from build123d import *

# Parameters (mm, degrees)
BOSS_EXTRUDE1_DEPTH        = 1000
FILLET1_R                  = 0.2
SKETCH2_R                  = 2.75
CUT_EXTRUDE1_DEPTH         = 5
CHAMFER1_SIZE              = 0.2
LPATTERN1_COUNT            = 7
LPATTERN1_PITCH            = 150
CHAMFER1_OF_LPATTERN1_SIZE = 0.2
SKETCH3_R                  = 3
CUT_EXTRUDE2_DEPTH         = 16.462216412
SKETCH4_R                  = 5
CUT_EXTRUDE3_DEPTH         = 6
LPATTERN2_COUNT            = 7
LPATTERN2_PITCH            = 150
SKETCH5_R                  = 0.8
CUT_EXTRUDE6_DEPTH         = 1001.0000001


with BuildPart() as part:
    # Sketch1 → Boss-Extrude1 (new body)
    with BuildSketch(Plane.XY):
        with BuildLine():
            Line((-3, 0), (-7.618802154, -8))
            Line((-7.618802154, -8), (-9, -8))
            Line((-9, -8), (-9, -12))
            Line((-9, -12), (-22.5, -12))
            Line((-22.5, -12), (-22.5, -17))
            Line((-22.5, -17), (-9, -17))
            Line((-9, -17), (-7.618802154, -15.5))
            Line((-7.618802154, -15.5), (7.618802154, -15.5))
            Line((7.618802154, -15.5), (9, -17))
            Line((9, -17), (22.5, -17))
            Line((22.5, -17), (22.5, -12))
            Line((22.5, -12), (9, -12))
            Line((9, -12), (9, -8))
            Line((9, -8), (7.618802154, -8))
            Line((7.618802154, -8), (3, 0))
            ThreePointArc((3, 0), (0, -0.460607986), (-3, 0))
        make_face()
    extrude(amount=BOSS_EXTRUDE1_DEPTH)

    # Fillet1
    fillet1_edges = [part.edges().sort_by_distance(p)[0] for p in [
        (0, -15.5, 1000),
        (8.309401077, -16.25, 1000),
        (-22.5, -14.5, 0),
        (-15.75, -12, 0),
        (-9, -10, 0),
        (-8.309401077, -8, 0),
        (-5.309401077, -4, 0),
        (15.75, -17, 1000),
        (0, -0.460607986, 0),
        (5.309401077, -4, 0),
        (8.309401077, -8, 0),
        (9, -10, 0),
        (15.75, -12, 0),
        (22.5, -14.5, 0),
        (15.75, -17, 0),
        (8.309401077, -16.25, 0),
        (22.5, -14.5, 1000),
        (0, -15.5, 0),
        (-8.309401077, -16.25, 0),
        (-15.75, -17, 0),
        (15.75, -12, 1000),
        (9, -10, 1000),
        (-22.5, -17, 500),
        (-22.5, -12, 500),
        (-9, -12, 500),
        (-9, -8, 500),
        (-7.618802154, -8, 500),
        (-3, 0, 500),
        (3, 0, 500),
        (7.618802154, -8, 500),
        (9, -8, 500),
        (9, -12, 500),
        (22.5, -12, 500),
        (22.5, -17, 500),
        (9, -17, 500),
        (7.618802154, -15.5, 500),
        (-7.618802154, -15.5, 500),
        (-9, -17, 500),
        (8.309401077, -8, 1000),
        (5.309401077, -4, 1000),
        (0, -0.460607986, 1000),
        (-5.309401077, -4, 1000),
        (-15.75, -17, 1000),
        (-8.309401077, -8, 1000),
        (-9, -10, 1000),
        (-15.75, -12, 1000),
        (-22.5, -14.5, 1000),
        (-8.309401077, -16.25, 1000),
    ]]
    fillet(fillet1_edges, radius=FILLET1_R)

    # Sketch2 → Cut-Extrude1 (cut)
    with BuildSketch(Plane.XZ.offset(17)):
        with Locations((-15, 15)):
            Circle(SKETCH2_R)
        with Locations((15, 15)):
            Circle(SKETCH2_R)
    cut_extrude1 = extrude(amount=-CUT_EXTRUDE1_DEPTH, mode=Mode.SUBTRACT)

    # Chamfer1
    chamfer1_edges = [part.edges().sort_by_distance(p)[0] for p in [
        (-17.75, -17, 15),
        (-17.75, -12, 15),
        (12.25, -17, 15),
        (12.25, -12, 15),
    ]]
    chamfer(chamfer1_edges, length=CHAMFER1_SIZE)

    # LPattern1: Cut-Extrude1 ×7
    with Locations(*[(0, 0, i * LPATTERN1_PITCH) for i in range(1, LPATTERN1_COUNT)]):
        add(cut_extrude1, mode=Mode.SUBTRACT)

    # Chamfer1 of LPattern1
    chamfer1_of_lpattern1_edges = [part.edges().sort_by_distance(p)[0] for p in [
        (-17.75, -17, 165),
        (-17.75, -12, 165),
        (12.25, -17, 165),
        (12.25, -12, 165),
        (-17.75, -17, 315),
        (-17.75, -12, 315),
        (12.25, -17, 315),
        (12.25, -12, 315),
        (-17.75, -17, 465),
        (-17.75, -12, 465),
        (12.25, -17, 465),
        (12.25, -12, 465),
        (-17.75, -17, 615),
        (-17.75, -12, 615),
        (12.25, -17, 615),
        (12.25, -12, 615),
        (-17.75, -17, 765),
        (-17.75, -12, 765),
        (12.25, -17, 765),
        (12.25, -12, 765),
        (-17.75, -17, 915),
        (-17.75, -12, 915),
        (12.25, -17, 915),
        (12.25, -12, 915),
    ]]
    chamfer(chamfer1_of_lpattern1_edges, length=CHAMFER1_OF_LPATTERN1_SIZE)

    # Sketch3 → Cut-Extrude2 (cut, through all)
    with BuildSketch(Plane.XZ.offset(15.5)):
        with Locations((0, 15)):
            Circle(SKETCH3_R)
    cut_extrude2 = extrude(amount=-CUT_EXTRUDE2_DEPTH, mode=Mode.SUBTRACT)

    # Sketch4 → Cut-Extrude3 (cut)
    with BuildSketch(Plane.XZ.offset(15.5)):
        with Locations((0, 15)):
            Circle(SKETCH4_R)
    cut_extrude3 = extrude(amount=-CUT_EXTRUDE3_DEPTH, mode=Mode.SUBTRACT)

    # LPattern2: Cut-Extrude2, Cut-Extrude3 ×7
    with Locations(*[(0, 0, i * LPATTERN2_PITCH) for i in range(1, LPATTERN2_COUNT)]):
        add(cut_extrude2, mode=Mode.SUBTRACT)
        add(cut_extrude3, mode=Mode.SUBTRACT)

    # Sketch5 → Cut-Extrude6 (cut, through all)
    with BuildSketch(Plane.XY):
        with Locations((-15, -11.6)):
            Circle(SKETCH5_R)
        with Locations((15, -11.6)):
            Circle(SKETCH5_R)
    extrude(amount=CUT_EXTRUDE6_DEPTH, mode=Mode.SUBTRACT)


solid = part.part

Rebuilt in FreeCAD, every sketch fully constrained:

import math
import FreeCAD as App
import Part
import Sketcher
from FreeCAD import Vector
Q = App.Units.Quantity


def edges_at(feature, points):
    """Names of the edges that pass closest to the given points."""
    edges = feature.Shape.Edges
    near = lambda p: min(range(len(edges)), key=lambda i: edges[i].distToShape(Part.Vertex(*p))[0])
    return sorted({f"Edge{near(p) + 1}" for p in points})

doc = App.newDocument("Part")
params = doc.addObject("Spreadsheet::Sheet", "Params")
for row, (alias, value) in enumerate([
    ("sketch1_radius", "10 mm"),
    ("sketch1_height", "4 mm"),
    ("sketch1_height2", "5 mm"),
    ("sketch1_width", "13.5 mm"),
    ("pad1_length", "1000 mm"),
    ("fillet_radius", "0.2 mm"),
    ("sketch2_diameter", "5.5 mm"),
    ("pocket1_length", "5 mm"),
    ("chamfer_size", "0.2 mm"),
    ("linearpattern_pitch", "150 mm"),
    ("chamfer2_size", "0.2 mm"),
    ("sketch3_diameter", "6 mm"),
    ("sketch4_diameter", "10 mm"),
    ("pocket3_length", "6 mm"),
    ("linearpattern2_pitch", "150 mm"),
    ("sketch5_diameter", "1.6 mm"),
], start=1):
    params.set(f"A{row}", alias)
    params.set(f"B{row}", "=" + value)
    params.setAlias(f"B{row}", alias)

body = doc.addObject("PartDesign::Body", "Body")

# Sketch on XY plane
sketch1 = body.newObject("Sketcher::SketchObject", "Sketch")
sketch1.AttachmentSupport = (doc.getObject("XY_Plane"), [""])
sketch1.MapMode = "FlatFace"
sketch1.addGeometry([
    Part.LineSegment(Vector(-3, 0, 0), Vector(-7.6, -8, 0)),  # 0
    Part.LineSegment(Vector(-7.6, -8, 0), Vector(-9, -8, 0)),  # 1
    Part.LineSegment(Vector(-9, -8, 0), Vector(-9, -12, 0)),  # 2
    Part.LineSegment(Vector(-9, -12, 0), Vector(-22.5, -12, 0)),  # 3
    Part.LineSegment(Vector(-22.5, -12, 0), Vector(-22.5, -17, 0)),  # 4
    Part.LineSegment(Vector(-22.5, -17, 0), Vector(-9, -17, 0)),  # 5
    Part.LineSegment(Vector(-9, -17, 0), Vector(-7.6, -15.5, 0)),  # 6
    Part.LineSegment(Vector(-7.6, -15.5, 0), Vector(7.6, -15.5, 0)),  # 7
    Part.LineSegment(Vector(7.6, -15.5, 0), Vector(9, -17, 0)),  # 8
    Part.LineSegment(Vector(9, -17, 0), Vector(22.5, -17, 0)),  # 9
    Part.LineSegment(Vector(22.5, -17, 0), Vector(22.5, -12, 0)),  # 10
    Part.LineSegment(Vector(22.5, -12, 0), Vector(9, -12, 0)),  # 11
    Part.LineSegment(Vector(9, -12, 0), Vector(9, -8, 0)),  # 12
    Part.LineSegment(Vector(9, -8, 0), Vector(7.6, -8, 0)),  # 13
    Part.LineSegment(Vector(7.6, -8, 0), Vector(3, 0, 0)),  # 14
    Part.ArcOfCircle(Part.Circle(Vector(0, 9.5, 0), Vector(0, 0, 1), 10), math.radians(-107), math.radians(-73)),  # 15
], False)
sketch1.addConstraint([
    Sketcher.Constraint("Coincident", 0, 2, 1, 1),
    Sketcher.Constraint("Coincident", 1, 2, 2, 1),
    Sketcher.Constraint("Coincident", 2, 2, 3, 1),
    Sketcher.Constraint("Coincident", 3, 2, 4, 1),
    Sketcher.Constraint("Coincident", 4, 2, 5, 1),
    Sketcher.Constraint("Coincident", 5, 2, 6, 1),
    Sketcher.Constraint("Coincident", 6, 2, 7, 1),
    Sketcher.Constraint("Coincident", 7, 2, 8, 1),
    Sketcher.Constraint("Coincident", 8, 2, 9, 1),
    Sketcher.Constraint("Coincident", 9, 2, 10, 1),
    Sketcher.Constraint("Coincident", 10, 2, 11, 1),
    Sketcher.Constraint("Coincident", 11, 2, 12, 1),
    Sketcher.Constraint("Coincident", 12, 2, 13, 1),
    Sketcher.Constraint("Coincident", 13, 2, 14, 1),
    Sketcher.Constraint("Coincident", 14, 2, 15, 2),
    Sketcher.Constraint("Coincident", 15, 1, 0, 1),
    Sketcher.Constraint("Horizontal", 1),
    Sketcher.Constraint("Vertical", 2),
    Sketcher.Constraint("Horizontal", 3),
    Sketcher.Constraint("Vertical", 4),
    Sketcher.Constraint("Horizontal", 5),
    Sketcher.Constraint("Horizontal", 7),
    Sketcher.Constraint("Horizontal", 9),
    Sketcher.Constraint("Vertical", 10),
    Sketcher.Constraint("Horizontal", 11),
    Sketcher.Constraint("Vertical", 12),
    Sketcher.Constraint("Horizontal", 13),
    Sketcher.Constraint("Symmetric", 14, 2, 15, 1, -1, 1),
    Sketcher.Constraint("Symmetric", 5, 2, 8, 2, -2),
    Sketcher.Constraint("Symmetric", 3, 2, 10, 2, -2),
    Sketcher.Constraint("Symmetric", 1, 2, 12, 2, -2),
    Sketcher.Constraint("PointOnObject", 15, 3, -2),
    Sketcher.Constraint("Vertical", 2, 2, 5, 2),
    Sketcher.Constraint("Vertical", 0, 2, 6, 2),
    Sketcher.Constraint("Vertical", 7, 2, 13, 2),
    Sketcher.Constraint("Equal", 1, 13),
    Sketcher.Constraint("Radius", 15, 10.0),
    Sketcher.Constraint("DistanceY", 2, 2, 2, 1, 4.0),
    Sketcher.Constraint("DistanceY", 4, 2, 4, 1, 5.0),
    Sketcher.Constraint("Angle", 0, Q("-120 deg")),
    Sketcher.Constraint("DistanceX", 3, 2, 3, 1, 13.5),
    Sketcher.Constraint("DistanceY", 0, 2, -1, 1, 8.0),
    Sketcher.Constraint("DistanceX", 1, 2, -1, 1, 9.0),
    Sketcher.Constraint("DistanceX", -1, 1, 14, 2, 3.0),
    Sketcher.Constraint("DistanceY", 6, 2, -1, 1, 15.5),
])
sketch1.setExpression("Constraints[36]", "Params.sketch1_radius")
sketch1.setExpression("Constraints[37]", "Params.sketch1_height")
sketch1.setExpression("Constraints[38]", "Params.sketch1_height2")
sketch1.setExpression("Constraints[40]", "Params.sketch1_width")
pad1 = body.newObject("PartDesign::Pad", "Pad")
pad1.Profile = sketch1
pad1.setExpression("Length", "Params.pad1_length")
doc.recompute()

fillet = body.newObject("PartDesign::Fillet", "Fillet")
fillet.Base = (pad1, ["Edge1"])
fillet.UseAllEdges = True
fillet.setExpression("Radius", "Params.fillet_radius")

# Sketch on XZ plane
sketch2 = body.newObject("Sketcher::SketchObject", "Sketch001")
sketch2.AttachmentSupport = (doc.getObject("XZ_Plane"), [""])
sketch2.MapMode = "FlatFace"
sketch2.AttachmentOffset = App.Placement(Vector(0, 0, 17), App.Rotation())
sketch2.addGeometry([
    Part.Circle(Vector(-15, 15, 0), Vector(0, 0, 1), 2.8),
    Part.Circle(Vector(15, 15, 0), Vector(0, 0, 1), 2.8),
], False)
sketch2.addConstraint([
    Sketcher.Constraint("Equal", 0, 1),
    Sketcher.Constraint("Symmetric", 0, 3, 1, 3, -2),
    Sketcher.Constraint("Diameter", 0, 5.5),
    Sketcher.Constraint("DistanceX", 0, 3, -1, 1, 15.0),
    Sketcher.Constraint("DistanceY", -1, 1, 0, 3, 15.0),
])
sketch2.setExpression("Constraints[2]", "Params.sketch2_diameter")
pocket1 = body.newObject("PartDesign::Pocket", "Pocket")
pocket1.Profile = sketch2
pocket1.setExpression("Length", "Params.pocket1_length")
doc.recompute()

chamfer = body.newObject("PartDesign::Chamfer", "Chamfer")
chamfer.Base = (pocket1, edges_at(pocket1, [
    (-17.75, -17, 15),
    (-17.75, -12, 15),
    (12.25, -17, 15),
    (12.25, -12, 15),
]))
chamfer.setExpression("Size", "Params.chamfer_size")
doc.recompute()

linearpattern = body.newObject("PartDesign::LinearPattern", "LinearPattern")
linearpattern.Originals = [pocket1]
linearpattern.Direction = (doc.getObject("Z_Axis"), [""])
linearpattern.Mode = "offset"
linearpattern.setExpression("Offset", "Params.linearpattern_pitch")
linearpattern.Occurrences = 7
body.Tip = linearpattern
doc.recompute()

chamfer2 = body.newObject("PartDesign::Chamfer", "Chamfer001")
chamfer2.Base = (linearpattern, edges_at(linearpattern, [
    (-17.75, -17, 165),
    (-17.75, -12, 165),
    (12.25, -17, 165),
    (12.25, -12, 165),
    (-17.75, -17, 315),
    (-17.75, -12, 315),
    (12.25, -17, 315),
    (12.25, -12, 315),
    (-17.75, -17, 465),
    (-17.75, -12, 465),
    (12.25, -17, 465),
    (12.25, -12, 465),
    (-17.75, -17, 615),
    (-17.75, -12, 615),
    (12.25, -17, 615),
    (12.25, -12, 615),
    (-17.75, -17, 765),
    (-17.75, -12, 765),
    (12.25, -17, 765),
    (12.25, -12, 765),
    (-17.75, -17, 915),
    (-17.75, -12, 915),
    (12.25, -17, 915),
    (12.25, -12, 915),
]))
chamfer2.setExpression("Size", "Params.chamfer2_size")

# Sketch on XZ plane
sketch3 = body.newObject("Sketcher::SketchObject", "Sketch002")
sketch3.AttachmentSupport = (doc.getObject("XZ_Plane"), [""])
sketch3.MapMode = "FlatFace"
sketch3.AttachmentOffset = App.Placement(Vector(0, 0, 15.5), App.Rotation())
sketch3.addGeometry(Part.Circle(Vector(0, 15, 0), Vector(0, 0, 1), 3), False)
sketch3.addConstraint([
    Sketcher.Constraint("PointOnObject", 0, 3, -2),
    Sketcher.Constraint("Diameter", 0, 6.0),
    Sketcher.Constraint("DistanceY", -1, 1, 0, 3, 15.0),
])
sketch3.setExpression("Constraints[1]", "Params.sketch3_diameter")
pocket2 = body.newObject("PartDesign::Pocket", "Pocket001")
pocket2.Profile = sketch3
pocket2.Type = "ThroughAll"

# Sketch on XZ plane
sketch4 = body.newObject("Sketcher::SketchObject", "Sketch003")
sketch4.AttachmentSupport = (doc.getObject("XZ_Plane"), [""])
sketch4.MapMode = "FlatFace"
sketch4.AttachmentOffset = App.Placement(Vector(0, 0, 15.5), App.Rotation())
sketch4.addGeometry(Part.Circle(Vector(0, 15, 0), Vector(0, 0, 1), 5), False)
sketch4.addConstraint([
    Sketcher.Constraint("PointOnObject", 0, 3, -2),
    Sketcher.Constraint("Diameter", 0, 10.0),
    Sketcher.Constraint("DistanceY", -1, 1, 0, 3, 15.0),
])
sketch4.setExpression("Constraints[1]", "Params.sketch4_diameter")
pocket3 = body.newObject("PartDesign::Pocket", "Pocket002")
pocket3.Profile = sketch4
pocket3.setExpression("Length", "Params.pocket3_length")
doc.recompute()

linearpattern2 = body.newObject("PartDesign::LinearPattern", "LinearPattern001")
linearpattern2.Originals = [pocket2, pocket3]
linearpattern2.Direction = (doc.getObject("Z_Axis"), [""])
linearpattern2.Mode = "offset"
linearpattern2.setExpression("Offset", "Params.linearpattern2_pitch")
linearpattern2.Occurrences = 7
body.Tip = linearpattern2

# Sketch on XY plane
sketch5 = body.newObject("Sketcher::SketchObject", "Sketch004")
sketch5.AttachmentSupport = (doc.getObject("XY_Plane"), [""])
sketch5.MapMode = "FlatFace"
sketch5.addGeometry([
    Part.Circle(Vector(-15, -11.6, 0), Vector(0, 0, 1), 0.8),
    Part.Circle(Vector(15, -11.6, 0), Vector(0, 0, 1), 0.8),
], False)
sketch5.addConstraint([
    Sketcher.Constraint("Equal", 0, 1),
    Sketcher.Constraint("Symmetric", 0, 3, 1, 3, -2),
    Sketcher.Constraint("Diameter", 0, 1.6),
    Sketcher.Constraint("DistanceX", 0, 3, -1, 1, 15.0),
    Sketcher.Constraint("DistanceY", 0, 3, -1, 1, 11.6),
])
sketch5.setExpression("Constraints[2]", "Params.sketch5_diameter")
pocket4 = body.newObject("PartDesign::Pocket", "Pocket003")
pocket4.Profile = sketch5
pocket4.Type = "ThroughAll"
pocket4.Reversed = True

doc.recompute()
